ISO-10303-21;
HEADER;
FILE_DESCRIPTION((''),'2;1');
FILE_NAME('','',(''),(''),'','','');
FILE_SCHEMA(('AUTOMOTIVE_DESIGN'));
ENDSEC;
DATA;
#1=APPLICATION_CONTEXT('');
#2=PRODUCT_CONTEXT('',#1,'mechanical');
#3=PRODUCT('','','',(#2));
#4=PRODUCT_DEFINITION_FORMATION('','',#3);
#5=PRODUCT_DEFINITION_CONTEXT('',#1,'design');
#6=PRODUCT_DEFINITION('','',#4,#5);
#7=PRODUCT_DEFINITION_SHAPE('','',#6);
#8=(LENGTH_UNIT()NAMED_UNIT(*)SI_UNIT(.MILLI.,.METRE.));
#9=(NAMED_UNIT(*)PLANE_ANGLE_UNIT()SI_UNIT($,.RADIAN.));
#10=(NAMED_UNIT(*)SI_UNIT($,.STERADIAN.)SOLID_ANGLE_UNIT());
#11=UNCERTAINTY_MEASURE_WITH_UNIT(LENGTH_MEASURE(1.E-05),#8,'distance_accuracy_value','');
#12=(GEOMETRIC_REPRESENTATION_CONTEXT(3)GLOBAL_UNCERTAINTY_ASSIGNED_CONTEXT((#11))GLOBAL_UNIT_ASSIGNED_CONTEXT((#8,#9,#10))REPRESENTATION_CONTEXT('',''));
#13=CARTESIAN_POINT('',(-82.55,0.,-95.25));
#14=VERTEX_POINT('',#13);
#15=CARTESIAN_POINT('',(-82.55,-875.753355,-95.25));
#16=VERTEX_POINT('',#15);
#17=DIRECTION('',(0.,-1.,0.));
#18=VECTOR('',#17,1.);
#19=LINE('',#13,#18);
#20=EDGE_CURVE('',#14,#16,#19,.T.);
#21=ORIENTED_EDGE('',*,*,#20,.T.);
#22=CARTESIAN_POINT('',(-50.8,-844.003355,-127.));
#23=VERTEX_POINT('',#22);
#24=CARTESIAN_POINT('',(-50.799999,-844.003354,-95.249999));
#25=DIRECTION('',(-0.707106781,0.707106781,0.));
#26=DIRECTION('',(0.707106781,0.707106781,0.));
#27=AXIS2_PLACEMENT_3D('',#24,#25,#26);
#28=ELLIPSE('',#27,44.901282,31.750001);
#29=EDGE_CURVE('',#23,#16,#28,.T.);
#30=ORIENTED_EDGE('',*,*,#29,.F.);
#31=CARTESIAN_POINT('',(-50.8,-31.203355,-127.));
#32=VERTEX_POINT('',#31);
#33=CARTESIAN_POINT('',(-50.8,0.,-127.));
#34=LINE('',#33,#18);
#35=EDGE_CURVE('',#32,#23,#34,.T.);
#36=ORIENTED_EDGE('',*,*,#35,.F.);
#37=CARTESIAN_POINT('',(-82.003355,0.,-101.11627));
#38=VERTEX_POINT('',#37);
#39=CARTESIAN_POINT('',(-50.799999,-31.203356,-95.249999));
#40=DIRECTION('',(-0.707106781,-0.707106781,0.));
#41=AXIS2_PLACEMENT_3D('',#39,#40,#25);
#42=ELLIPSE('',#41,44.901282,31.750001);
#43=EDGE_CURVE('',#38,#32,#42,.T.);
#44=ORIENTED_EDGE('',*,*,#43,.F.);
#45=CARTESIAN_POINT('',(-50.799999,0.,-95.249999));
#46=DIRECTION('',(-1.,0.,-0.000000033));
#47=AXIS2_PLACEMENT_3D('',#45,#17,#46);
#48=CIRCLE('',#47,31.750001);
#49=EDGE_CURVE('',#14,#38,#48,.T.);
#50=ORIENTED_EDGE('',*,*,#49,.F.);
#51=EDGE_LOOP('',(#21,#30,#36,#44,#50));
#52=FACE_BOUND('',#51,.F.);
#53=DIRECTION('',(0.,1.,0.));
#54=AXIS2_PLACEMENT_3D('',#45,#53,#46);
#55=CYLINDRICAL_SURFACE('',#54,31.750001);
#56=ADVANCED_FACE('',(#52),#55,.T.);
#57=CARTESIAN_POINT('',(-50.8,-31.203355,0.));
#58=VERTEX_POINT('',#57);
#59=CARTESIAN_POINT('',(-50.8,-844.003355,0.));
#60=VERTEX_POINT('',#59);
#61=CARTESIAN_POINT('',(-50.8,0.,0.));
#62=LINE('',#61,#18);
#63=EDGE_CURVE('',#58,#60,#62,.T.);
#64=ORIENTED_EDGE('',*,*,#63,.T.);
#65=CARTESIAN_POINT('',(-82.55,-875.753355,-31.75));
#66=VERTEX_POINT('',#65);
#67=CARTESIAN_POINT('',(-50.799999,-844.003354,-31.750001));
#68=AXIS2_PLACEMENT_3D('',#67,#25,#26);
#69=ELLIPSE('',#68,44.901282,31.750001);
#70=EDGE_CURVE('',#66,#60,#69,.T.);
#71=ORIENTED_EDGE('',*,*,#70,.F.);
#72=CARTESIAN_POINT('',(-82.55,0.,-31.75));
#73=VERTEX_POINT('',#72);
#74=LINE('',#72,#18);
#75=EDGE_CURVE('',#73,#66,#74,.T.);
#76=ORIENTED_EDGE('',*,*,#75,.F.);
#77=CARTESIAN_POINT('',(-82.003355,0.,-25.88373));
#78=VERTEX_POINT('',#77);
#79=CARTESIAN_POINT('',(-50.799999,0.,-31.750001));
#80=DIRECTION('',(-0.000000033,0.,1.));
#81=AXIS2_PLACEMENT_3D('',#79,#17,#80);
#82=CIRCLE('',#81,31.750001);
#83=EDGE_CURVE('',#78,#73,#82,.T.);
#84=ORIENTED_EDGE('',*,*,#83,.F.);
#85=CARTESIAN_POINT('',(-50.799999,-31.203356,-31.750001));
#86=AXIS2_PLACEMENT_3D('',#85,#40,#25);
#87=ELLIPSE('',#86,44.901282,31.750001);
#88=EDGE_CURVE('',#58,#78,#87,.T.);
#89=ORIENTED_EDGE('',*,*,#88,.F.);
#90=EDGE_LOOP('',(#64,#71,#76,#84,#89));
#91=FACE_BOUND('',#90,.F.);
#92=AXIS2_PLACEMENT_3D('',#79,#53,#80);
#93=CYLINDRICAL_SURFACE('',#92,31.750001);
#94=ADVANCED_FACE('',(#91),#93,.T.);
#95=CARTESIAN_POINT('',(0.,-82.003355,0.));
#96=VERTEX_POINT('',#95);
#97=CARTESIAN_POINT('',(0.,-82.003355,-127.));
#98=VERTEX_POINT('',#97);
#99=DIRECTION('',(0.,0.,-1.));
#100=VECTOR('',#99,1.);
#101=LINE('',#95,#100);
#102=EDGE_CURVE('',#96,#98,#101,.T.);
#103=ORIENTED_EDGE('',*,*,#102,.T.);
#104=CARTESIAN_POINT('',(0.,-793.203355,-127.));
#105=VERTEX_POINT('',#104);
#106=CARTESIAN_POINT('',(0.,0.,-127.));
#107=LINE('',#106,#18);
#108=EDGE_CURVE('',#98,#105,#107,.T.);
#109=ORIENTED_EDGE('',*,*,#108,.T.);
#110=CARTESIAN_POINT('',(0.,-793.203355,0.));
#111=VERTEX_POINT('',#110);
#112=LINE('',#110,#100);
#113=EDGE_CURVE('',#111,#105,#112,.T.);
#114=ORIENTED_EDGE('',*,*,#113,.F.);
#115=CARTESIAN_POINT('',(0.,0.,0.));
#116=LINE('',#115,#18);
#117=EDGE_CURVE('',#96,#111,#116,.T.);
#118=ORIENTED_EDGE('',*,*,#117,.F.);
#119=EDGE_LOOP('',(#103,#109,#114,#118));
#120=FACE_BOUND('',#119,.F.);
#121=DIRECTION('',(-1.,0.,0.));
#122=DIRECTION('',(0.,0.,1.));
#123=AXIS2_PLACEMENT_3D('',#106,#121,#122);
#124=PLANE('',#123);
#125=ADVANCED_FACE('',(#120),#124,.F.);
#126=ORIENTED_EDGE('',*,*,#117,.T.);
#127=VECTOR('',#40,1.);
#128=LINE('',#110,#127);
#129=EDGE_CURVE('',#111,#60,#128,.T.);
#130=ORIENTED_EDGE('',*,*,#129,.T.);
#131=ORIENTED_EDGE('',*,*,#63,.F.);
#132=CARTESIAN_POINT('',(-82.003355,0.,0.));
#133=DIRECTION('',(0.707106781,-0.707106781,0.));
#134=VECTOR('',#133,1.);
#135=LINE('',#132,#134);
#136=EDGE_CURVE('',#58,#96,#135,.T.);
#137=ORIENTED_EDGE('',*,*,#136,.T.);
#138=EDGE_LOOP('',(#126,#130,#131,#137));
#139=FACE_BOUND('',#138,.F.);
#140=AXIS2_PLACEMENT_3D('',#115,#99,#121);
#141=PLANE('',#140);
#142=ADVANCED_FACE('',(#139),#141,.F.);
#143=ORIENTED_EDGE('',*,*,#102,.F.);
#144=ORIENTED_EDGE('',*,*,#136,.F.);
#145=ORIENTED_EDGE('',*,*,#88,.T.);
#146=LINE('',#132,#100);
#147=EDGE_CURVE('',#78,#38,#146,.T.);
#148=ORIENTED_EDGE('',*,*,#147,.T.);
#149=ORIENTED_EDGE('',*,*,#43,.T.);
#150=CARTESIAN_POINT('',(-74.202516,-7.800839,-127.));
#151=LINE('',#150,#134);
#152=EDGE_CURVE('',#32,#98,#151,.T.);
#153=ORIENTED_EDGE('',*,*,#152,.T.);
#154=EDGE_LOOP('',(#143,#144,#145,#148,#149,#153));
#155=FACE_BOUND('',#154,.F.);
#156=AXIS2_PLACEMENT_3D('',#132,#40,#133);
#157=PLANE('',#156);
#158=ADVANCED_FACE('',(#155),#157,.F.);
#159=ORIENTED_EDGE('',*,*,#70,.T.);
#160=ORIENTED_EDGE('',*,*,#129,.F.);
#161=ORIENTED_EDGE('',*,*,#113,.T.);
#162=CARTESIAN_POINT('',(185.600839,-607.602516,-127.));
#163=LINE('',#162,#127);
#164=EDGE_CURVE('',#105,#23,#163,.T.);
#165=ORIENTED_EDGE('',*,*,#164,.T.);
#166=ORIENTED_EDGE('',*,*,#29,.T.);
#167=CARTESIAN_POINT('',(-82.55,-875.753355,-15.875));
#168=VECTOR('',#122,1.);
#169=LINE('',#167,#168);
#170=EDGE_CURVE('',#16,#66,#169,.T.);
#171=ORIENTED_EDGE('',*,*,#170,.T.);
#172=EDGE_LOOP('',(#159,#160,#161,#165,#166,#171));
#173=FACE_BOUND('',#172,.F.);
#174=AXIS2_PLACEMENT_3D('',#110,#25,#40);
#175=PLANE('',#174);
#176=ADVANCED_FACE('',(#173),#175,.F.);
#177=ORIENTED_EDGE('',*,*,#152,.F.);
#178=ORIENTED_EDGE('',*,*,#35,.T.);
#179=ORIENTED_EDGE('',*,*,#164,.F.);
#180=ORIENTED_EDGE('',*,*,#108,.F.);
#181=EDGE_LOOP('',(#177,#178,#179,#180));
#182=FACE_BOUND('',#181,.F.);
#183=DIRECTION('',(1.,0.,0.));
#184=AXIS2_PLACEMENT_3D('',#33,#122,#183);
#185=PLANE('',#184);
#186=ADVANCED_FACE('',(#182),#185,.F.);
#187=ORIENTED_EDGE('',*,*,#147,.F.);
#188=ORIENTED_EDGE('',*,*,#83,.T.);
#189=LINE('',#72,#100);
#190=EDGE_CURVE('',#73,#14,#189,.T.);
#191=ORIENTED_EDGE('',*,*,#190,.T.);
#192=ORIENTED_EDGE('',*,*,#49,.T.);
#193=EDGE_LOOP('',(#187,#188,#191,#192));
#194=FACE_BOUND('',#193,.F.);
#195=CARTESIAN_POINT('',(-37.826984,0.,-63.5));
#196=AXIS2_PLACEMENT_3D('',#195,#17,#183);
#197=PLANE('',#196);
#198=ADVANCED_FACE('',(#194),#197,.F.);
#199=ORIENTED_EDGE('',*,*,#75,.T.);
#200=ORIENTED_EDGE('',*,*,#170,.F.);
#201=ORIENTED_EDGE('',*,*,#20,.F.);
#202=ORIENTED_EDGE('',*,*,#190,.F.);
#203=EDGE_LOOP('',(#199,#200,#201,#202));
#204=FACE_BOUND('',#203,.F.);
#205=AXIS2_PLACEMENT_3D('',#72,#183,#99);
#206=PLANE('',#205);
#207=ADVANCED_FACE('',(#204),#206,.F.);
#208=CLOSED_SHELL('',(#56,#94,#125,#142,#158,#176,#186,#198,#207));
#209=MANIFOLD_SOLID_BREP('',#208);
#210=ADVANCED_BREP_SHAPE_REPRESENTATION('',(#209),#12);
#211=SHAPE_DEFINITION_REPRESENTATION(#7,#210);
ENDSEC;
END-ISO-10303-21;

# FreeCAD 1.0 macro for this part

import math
import FreeCAD as App
import Part
import Sketcher
Q = App.Units.Quantity


def add_polygon(sketch, points):
    """Adds a closed chain of lines whose ends are joined by coincident constraints."""
    first, n = sketch.GeometryCount, len(points)
    for a, b in zip(points, points[1:] + points[:1]):
        sketch.addGeometry(Part.LineSegment(App.Vector(*a, 0), App.Vector(*b, 0)), False)
    for i in range(n):
        sketch.addConstraint(Sketcher.Constraint("Coincident", first + i, 2, first + (i + 1) % n, 1))

doc = App.newDocument("Part")
body = doc.addObject("PartDesign::Body", "Body")

sketch1 = body.newObject("Sketcher::SketchObject", "Sketch")
sketch1.AttachmentSupport = (doc.getObject("XZ_Plane"), [""])
sketch1.MapMode = "FlatFace"
sketch1.addGeometry([
    Part.LineSegment(App.Vector(0, -127, 0), App.Vector(0, 0, 0)),
    Part.LineSegment(App.Vector(0, 0, 0), App.Vector(-51, 0, 0)),
    Part.ArcOfCircle(Part.Circle(App.Vector(-51, -32, 0), App.Vector(0, 0, 1), 32), math.radians(90), math.radians(180)),
    Part.LineSegment(App.Vector(-83, -32, 0), App.Vector(-83, -95, 0)),
    Part.ArcOfCircle(Part.Circle(App.Vector(-51, -95, 0), App.Vector(0, 0, 1), 32), math.radians(-180), math.radians(-90)),
    Part.LineSegment(App.Vector(-51, -127, 0), App.Vector(0, -127, 0)),
], False)
sketch1.addConstraint([
    Sketcher.Constraint("Coincident", 0, 2, 1, 1),
    Sketcher.Constraint("Tangent", 1, 2, 2, 1),
    Sketcher.Constraint("Tangent", 2, 2, 3, 1),
    Sketcher.Constraint("Tangent", 3, 2, 4, 1),
    Sketcher.Constraint("Tangent", 4, 2, 5, 1),
    Sketcher.Constraint("Coincident", 5, 2, 0, 1),
    Sketcher.Constraint("Vertical", 0),
    Sketcher.Constraint("Horizontal", 1),
    Sketcher.Constraint("Vertical", 3),
    Sketcher.Constraint("Horizontal", 5),
    Sketcher.Constraint("Coincident", 0, 2, -1, 1),
    Sketcher.Constraint("Equal", 2, 4),
    Sketcher.Constraint("DistanceX", 1, 2, 1, 1, Q("2 in")),
    Sketcher.Constraint("DistanceY", 0, 1, 0, 2, Q("5 in")),
    Sketcher.Constraint("Radius", 2, Q("1.25 in")),
])
pad1 = body.newObject("PartDesign::Pad", "Pad")
pad1.Profile = sketch1
pad1.Length = Q("40 in")

sketch2 = body.newObject("Sketcher::SketchObject", "Sketch001")
sketch2.AttachmentSupport = (doc.getObject("XY_Plane"), [""])
sketch2.MapMode = "FlatFace"
add_polygon(sketch2, [(0, -82), (0, 0), (-82, 0)])
sketch2.addConstraint([
    Sketcher.Constraint("Vertical", 0),
    Sketcher.Constraint("Horizontal", 1),
    Sketcher.Constraint("Coincident", 0, 2, -1, 1),
    Sketcher.Constraint("Equal", 1, 0),
    Sketcher.Constraint("DistanceX", 1, 2, 1, 1, 82.003355),
])
pocket1 = body.newObject("PartDesign::Pocket", "Pocket")
pocket1.Profile = sketch2
pocket1.Type = "ThroughAll"

sketch3 = body.newObject("Sketcher::SketchObject", "Sketch002")
sketch3.AttachmentSupport = (doc.getObject("XY_Plane"), [""])
sketch3.MapMode = "FlatFace"
add_polygon(sketch3, [(0, -1016), (0, -793), (-223, -1016)])
sketch3.addConstraint([
    Sketcher.Constraint("Vertical", 0),
    Sketcher.Constraint("Horizontal", 2),
    Sketcher.Constraint("PointOnObject", 0, 2, -2),
    Sketcher.Constraint("Equal", 2, 0),
    Sketcher.Constraint("DistanceY", 1, 2, -1, 1, Q("40 in")),
    Sketcher.Constraint("DistanceX", 2, 1, 2, 2, 222.796645),
])
pocket2 = body.newObject("PartDesign::Pocket", "Pocket001")
pocket2.Profile = sketch3
pocket2.Type = "ThroughAll"

doc.recompute()
